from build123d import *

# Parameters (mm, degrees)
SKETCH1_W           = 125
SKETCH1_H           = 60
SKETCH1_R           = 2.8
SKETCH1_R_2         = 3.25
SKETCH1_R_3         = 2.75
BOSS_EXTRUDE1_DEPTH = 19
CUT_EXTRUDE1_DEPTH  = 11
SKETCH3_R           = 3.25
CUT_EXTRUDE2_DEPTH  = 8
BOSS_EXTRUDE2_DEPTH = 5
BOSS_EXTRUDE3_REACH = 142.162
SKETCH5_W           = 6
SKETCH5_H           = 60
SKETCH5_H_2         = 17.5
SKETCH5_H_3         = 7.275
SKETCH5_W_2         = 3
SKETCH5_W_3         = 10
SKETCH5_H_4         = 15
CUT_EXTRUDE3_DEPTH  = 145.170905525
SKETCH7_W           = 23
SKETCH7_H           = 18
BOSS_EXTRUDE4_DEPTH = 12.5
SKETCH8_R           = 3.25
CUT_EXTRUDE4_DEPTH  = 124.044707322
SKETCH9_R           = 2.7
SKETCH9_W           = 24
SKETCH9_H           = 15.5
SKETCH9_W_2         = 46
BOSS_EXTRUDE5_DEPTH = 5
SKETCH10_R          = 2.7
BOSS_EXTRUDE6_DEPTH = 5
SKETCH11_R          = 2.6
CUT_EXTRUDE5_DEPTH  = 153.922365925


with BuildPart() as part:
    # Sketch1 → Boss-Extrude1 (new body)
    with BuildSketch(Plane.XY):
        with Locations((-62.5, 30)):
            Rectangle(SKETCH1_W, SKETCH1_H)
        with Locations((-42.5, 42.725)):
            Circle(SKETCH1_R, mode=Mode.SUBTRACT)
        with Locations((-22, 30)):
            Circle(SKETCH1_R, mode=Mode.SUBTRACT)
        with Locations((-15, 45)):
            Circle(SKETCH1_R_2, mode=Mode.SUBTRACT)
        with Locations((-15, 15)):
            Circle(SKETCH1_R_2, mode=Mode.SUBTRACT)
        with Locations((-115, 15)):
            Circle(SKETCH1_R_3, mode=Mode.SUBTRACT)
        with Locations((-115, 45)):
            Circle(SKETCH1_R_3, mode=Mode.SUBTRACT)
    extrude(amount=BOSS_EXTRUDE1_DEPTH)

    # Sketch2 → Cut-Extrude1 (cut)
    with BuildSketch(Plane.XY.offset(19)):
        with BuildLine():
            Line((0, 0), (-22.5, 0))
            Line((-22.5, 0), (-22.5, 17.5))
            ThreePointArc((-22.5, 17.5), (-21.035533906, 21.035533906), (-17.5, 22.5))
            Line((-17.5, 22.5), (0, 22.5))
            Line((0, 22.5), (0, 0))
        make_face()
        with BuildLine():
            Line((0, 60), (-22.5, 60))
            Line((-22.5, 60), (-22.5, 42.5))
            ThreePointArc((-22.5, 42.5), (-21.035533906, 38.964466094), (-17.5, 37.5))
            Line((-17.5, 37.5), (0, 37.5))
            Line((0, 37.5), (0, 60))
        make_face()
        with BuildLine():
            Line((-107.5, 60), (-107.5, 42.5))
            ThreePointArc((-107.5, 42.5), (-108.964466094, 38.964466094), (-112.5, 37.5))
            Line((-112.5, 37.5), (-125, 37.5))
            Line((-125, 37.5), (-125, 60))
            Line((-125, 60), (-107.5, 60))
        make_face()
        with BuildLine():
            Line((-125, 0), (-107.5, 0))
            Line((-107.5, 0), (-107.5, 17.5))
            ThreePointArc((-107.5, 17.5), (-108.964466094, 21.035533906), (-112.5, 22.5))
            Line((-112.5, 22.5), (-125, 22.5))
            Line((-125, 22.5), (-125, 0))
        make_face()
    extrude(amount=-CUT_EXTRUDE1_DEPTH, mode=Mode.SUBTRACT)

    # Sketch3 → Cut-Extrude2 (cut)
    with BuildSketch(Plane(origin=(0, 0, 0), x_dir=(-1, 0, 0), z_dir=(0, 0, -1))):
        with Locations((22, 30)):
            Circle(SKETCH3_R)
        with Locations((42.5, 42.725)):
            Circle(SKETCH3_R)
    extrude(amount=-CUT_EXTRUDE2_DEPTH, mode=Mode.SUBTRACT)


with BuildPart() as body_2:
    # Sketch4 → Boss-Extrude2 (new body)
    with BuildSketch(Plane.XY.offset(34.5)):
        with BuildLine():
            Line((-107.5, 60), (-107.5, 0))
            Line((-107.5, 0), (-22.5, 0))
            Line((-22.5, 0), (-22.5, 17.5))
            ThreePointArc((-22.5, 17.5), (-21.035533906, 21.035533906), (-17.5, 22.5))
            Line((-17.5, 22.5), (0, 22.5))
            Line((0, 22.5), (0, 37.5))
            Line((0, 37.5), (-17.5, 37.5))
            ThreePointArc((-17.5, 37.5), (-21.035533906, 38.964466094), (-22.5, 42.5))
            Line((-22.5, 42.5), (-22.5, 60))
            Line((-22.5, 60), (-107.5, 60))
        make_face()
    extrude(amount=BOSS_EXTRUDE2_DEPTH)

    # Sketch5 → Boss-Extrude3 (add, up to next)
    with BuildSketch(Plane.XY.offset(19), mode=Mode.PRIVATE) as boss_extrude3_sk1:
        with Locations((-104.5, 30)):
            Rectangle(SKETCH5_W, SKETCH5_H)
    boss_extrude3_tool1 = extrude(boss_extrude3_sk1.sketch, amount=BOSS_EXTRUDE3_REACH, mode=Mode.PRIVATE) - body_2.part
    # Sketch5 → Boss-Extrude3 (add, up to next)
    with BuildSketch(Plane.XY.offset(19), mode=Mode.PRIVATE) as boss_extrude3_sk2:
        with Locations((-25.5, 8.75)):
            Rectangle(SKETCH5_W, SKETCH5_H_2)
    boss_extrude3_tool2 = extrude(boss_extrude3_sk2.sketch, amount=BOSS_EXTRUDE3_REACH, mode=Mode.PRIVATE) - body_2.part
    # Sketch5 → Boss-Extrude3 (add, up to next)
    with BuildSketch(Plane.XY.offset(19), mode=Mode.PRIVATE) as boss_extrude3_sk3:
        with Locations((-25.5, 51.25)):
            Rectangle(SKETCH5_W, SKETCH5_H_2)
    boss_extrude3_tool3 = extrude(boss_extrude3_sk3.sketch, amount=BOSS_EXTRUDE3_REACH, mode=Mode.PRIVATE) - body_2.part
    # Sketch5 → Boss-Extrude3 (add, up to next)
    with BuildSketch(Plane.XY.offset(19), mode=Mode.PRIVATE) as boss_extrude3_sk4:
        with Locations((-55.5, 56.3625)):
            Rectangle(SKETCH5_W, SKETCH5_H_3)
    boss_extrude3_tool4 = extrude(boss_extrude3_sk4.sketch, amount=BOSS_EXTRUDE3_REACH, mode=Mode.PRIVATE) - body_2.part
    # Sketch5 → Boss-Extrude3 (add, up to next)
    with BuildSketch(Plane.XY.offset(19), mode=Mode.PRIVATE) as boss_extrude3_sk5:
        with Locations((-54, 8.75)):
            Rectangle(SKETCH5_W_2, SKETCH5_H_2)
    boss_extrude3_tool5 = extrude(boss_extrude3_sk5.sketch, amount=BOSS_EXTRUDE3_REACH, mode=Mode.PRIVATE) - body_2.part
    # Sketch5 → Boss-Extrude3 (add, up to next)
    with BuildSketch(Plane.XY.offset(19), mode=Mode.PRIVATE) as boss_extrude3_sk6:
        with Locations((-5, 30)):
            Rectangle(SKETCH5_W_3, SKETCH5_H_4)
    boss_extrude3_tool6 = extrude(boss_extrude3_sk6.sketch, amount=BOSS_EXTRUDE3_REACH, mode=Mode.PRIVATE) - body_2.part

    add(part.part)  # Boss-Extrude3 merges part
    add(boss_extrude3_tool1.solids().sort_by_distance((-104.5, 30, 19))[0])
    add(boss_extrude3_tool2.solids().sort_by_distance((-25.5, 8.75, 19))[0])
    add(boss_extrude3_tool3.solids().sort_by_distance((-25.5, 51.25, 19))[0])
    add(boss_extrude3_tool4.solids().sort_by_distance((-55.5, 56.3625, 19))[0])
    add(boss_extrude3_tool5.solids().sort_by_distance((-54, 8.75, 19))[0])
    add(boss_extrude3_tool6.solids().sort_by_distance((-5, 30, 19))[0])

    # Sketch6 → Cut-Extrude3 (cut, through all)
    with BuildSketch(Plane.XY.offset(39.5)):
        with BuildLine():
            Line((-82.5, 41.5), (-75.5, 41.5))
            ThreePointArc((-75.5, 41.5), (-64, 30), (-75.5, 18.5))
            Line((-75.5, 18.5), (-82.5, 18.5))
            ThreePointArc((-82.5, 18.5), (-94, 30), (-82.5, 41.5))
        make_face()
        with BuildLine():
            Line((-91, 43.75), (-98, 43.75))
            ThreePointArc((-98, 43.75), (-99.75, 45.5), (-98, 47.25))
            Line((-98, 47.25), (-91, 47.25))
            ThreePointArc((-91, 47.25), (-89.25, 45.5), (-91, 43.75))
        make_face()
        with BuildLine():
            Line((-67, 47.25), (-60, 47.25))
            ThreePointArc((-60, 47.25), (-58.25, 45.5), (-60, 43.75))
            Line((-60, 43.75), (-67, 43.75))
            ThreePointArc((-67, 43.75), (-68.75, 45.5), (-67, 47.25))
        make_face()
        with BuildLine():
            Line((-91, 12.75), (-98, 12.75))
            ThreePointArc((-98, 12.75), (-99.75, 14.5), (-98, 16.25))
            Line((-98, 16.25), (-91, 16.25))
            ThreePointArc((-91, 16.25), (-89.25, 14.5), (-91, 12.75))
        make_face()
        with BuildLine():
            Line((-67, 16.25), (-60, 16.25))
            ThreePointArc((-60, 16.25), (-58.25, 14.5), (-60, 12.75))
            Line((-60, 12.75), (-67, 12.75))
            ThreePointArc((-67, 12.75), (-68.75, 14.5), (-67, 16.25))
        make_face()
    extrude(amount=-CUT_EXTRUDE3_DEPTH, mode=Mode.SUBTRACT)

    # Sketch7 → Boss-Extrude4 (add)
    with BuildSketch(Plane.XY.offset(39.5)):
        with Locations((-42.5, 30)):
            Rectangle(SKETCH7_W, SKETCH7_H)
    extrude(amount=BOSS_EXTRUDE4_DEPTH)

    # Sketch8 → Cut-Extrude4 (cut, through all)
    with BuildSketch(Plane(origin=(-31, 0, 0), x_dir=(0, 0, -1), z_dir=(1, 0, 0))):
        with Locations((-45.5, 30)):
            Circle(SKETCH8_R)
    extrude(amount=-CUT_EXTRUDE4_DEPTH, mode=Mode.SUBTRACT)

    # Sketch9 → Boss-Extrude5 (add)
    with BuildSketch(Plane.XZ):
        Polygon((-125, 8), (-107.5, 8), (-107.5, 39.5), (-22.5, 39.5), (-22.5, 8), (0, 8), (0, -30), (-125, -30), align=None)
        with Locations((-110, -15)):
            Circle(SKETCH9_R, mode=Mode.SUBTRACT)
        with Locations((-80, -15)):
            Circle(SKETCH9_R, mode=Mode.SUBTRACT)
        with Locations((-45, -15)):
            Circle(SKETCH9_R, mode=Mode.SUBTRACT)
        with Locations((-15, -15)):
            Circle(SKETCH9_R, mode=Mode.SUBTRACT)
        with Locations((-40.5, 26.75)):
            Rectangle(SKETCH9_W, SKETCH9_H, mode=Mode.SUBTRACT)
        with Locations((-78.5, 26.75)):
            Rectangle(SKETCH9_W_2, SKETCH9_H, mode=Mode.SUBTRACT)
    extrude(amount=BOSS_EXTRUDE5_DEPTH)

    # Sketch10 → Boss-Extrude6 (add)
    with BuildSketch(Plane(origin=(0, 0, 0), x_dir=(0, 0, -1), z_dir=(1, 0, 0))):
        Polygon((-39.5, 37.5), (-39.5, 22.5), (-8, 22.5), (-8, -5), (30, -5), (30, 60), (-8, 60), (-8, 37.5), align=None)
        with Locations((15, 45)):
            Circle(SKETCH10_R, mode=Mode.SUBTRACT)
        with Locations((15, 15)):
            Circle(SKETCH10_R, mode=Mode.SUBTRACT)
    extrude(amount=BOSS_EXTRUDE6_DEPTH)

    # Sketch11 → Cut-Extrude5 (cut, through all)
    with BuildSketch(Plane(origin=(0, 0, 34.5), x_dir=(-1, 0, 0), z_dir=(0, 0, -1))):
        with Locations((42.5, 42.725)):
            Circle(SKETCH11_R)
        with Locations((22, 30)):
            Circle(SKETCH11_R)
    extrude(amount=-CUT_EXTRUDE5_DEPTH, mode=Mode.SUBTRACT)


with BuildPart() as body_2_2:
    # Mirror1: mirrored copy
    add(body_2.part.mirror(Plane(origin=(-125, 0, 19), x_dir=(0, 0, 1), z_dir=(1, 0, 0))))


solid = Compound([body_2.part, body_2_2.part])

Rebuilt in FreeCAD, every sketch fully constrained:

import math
import FreeCAD as App
import Part
import Sketcher
from FreeCAD import Vector
Q = App.Units.Quantity

doc = App.newDocument("Part")
body = doc.addObject("PartDesign::Body", "Body")

# Sketch on XY plane
sketch1 = doc.addObject("Sketcher::SketchObject", "Sketch")
body.addObject(sketch1)
sketch1.AttachmentSupport = (doc.XY_Plane, [""])
sketch1.MapMode = "FlatFace"
sketch1.addGeometry([
    Part.LineSegment(Vector(-125, 60, 0), Vector(-125, 0, 0)),  # 0
    Part.LineSegment(Vector(-125, 0, 0), Vector(0, 0, 0)),  # 1
    Part.LineSegment(Vector(0, 0, 0), Vector(0, 60, 0)),  # 2
    Part.LineSegment(Vector(0, 60, 0), Vector(-125, 60, 0)),  # 3
    Part.Circle(Vector(-115, 15, 0), Vector(0, 0, 1), 2.8),  # 4
    Part.Circle(Vector(-15, 15, 0), Vector(0, 0, 1), 3.2),  # 5
    Part.Circle(Vector(-115, 45, 0), Vector(0, 0, 1), 2.8),  # 6
    Part.Circle(Vector(-22, 30, 0), Vector(0, 0, 1), 2.8),  # 7
    Part.Circle(Vector(-42.5, 42.7, 0), Vector(0, 0, 1), 2.8),  # 8
    Part.Circle(Vector(-15, 45, 0), Vector(0, 0, 1), 3.2),  # 9
], False)
sketch1.addConstraint([
    Sketcher.Constraint("Coincident", 0, 2, 1, 1),
    Sketcher.Constraint("Coincident", 1, 2, 2, 1),
    Sketcher.Constraint("Coincident", 2, 2, 3, 1),
    Sketcher.Constraint("Coincident", 3, 2, 0, 1),
    Sketcher.Constraint("Vertical", 0),
    Sketcher.Constraint("Horizontal", 1),
    Sketcher.Constraint("Vertical", 2),
    Sketcher.Constraint("Horizontal", 3),
    Sketcher.Constraint("Coincident", 1, 2, -1, 1),
    Sketcher.Constraint("Equal", 4, 6),
    Sketcher.Constraint("Equal", 7, 8),
    Sketcher.Constraint("Equal", 5, 9),
    Sketcher.Constraint("Horizontal", 4, 3, 5, 3),
    Sketcher.Constraint("Horizontal", 6, 3, 9, 3),
    Sketcher.Constraint("Vertical", 4, 3, 6, 3),
    Sketcher.Constraint("Vertical", 5, 3, 9, 3),
    Sketcher.Constraint("Diameter", 4, Q("5.5 mm")),
    Sketcher.Constraint("Diameter", 5, Q("6.5 mm")),
    Sketcher.Constraint("Diameter", 7, Q("5.6 mm")),
    Sketcher.Constraint("DistanceX", 1, 1, 1, 2, Q("125 mm")),
    Sketcher.Constraint("DistanceY", 0, 2, 0, 1, Q("60 mm")),
    Sketcher.Constraint("DistanceX", 4, 3, -1, 1, Q("115 mm")),
    Sketcher.Constraint("DistanceY", -1, 1, 4, 3, Q("15 mm")),
    Sketcher.Constraint("DistanceX", 5, 3, -1, 1, Q("15 mm")),
    Sketcher.Constraint("DistanceY", -1, 1, 6, 3, Q("45 mm")),
    Sketcher.Constraint("DistanceX", 7, 3, -1, 1, Q("22 mm")),
    Sketcher.Constraint("DistanceY", -1, 1, 7, 3, Q("30 mm")),
    Sketcher.Constraint("DistanceX", 8, 3, -1, 1, Q("42.5 mm")),
    Sketcher.Constraint("DistanceY", -1, 1, 8, 3, Q("42.725 mm")),
])
pad1 = doc.addObject("PartDesign::Pad", "Pad")
body.addObject(pad1)
pad1.Profile = sketch1
pad1.Length = 19

# Sketch on XY plane
sketch2 = doc.addObject("Sketcher::SketchObject", "Sketch001")
body.addObject(sketch2)
sketch2.AttachmentSupport = (doc.XY_Plane, [""])
sketch2.MapMode = "FlatFace"
sketch2.AttachmentOffset = App.Placement(Vector(0, 0, 19), App.Rotation())
sketch2.addGeometry([
    Part.LineSegment(Vector(-22, 0, 0), Vector(0, 0, 0)),  # 0
    Part.LineSegment(Vector(0, 0, 0), Vector(0, 22, 0)),  # 1
    Part.LineSegment(Vector(0, 22, 0), Vector(-18, 22, 0)),  # 2
    Part.ArcOfCircle(Part.Circle(Vector(-18, 18, 0), Vector(0, 0, 1), 5), math.radians(90), math.radians(180)),  # 3
    Part.LineSegment(Vector(-22, 18, 0), Vector(-22, 0, 0)),  # 4
    Part.LineSegment(Vector(0, 60, 0), Vector(-22, 60, 0)),  # 5
    Part.LineSegment(Vector(-22, 60, 0), Vector(-22, 42, 0)),  # 6
    Part.ArcOfCircle(Part.Circle(Vector(-18, 42, 0), Vector(0, 0, 1), 5), math.radians(180), math.radians(270)),  # 7
    Part.LineSegment(Vector(-18, 38, 0), Vector(0, 38, 0)),  # 8
    Part.LineSegment(Vector(0, 38, 0), Vector(0, 60, 0)),  # 9
    Part.LineSegment(Vector(-108, 42, 0), Vector(-108, 60, 0)),  # 10
    Part.LineSegment(Vector(-108, 60, 0), Vector(-125, 60, 0)),  # 11
    Part.LineSegment(Vector(-125, 60, 0), Vector(-125, 38, 0)),  # 12
    Part.LineSegment(Vector(-125, 38, 0), Vector(-112, 38, 0)),  # 13
    Part.ArcOfCircle(Part.Circle(Vector(-112, 42, 0), Vector(0, 0, 1), 5), math.radians(-90), math.radians(0)),  # 14
    Part.LineSegment(Vector(-125, 0, 0), Vector(-108, 0, 0)),  # 15
    Part.LineSegment(Vector(-108, 0, 0), Vector(-108, 18, 0)),  # 16
    Part.ArcOfCircle(Part.Circle(Vector(-112, 18, 0), Vector(0, 0, 1), 5), math.radians(0), math.radians(90)),  # 17
    Part.LineSegment(Vector(-112, 22, 0), Vector(-125, 22, 0)),  # 18
    Part.LineSegment(Vector(-125, 22, 0), Vector(-125, 0, 0)),  # 19
], False)
sketch2.addConstraint([
    Sketcher.Constraint("Coincident", 0, 2, 1, 1),
    Sketcher.Constraint("Coincident", 1, 2, 2, 1),
    Sketcher.Constraint("Tangent", 2, 2, 3, 1),
    Sketcher.Constraint("Tangent", 3, 2, 4, 1),
    Sketcher.Constraint("Coincident", 4, 2, 0, 1),
    Sketcher.Constraint("Coincident", 5, 2, 6, 1),
    Sketcher.Constraint("Tangent", 6, 2, 7, 1),
    Sketcher.Constraint("Tangent", 7, 2, 8, 1),
    Sketcher.Constraint("Coincident", 8, 2, 9, 1),
    Sketcher.Constraint("Coincident", 9, 2, 5, 1),
    Sketcher.Constraint("Coincident", 10, 2, 11, 1),
    Sketcher.Constraint("Coincident", 11, 2, 12, 1),
    Sketcher.Constraint("Coincident", 12, 2, 13, 1),
    Sketcher.Constraint("Tangent", 13, 2, 14, 1),
    Sketcher.Constraint("Tangent", 14, 2, 10, 1),
    Sketcher.Constraint("Coincident", 15, 2, 16, 1),
    Sketcher.Constraint("Tangent", 16, 2, 17, 1),
    Sketcher.Constraint("Tangent", 17, 2, 18, 1),
    Sketcher.Constraint("Coincident", 18, 2, 19, 1),
    Sketcher.Constraint("Coincident", 19, 2, 15, 1),
    Sketcher.Constraint("Horizontal", 0),
    Sketcher.Constraint("Vertical", 1),
    Sketcher.Constraint("Horizontal", 2),
    Sketcher.Constraint("Vertical", 4),
    Sketcher.Constraint("Horizontal", 5),
    Sketcher.Constraint("Vertical", 6),
    Sketcher.Constraint("Horizontal", 8),
    Sketcher.Constraint("Vertical", 9),
    Sketcher.Constraint("Vertical", 10),
    Sketcher.Constraint("Horizontal", 11),
    Sketcher.Constraint("Vertical", 12),
    Sketcher.Constraint("Horizontal", 13),
    Sketcher.Constraint("Horizontal", 15),
    Sketcher.Constraint("Vertical", 16),
    Sketcher.Constraint("Horizontal", 18),
    Sketcher.Constraint("Vertical", 19),
    Sketcher.Constraint("Coincident", 0, 2, -1, 1),
    Sketcher.Constraint("Equal", 3, 7),
    Sketcher.Constraint("Equal", 7, 14),
    Sketcher.Constraint("Equal", 14, 17),
    Sketcher.Constraint("PointOnObject", 8, 2, -2),
    Sketcher.Constraint("PointOnObject", 15, 2, -1),
    Sketcher.Constraint("Horizontal", 7, 3, 14, 3),
    Sketcher.Constraint("Horizontal", 3, 3, 17, 3),
    Sketcher.Constraint("Horizontal", 9, 2, 10, 2),
    Sketcher.Constraint("Vertical", 3, 3, 7, 3),
    Sketcher.Constraint("Vertical", 14, 3, 17, 3),
    Sketcher.Constraint("Vertical", 12, 2, 18, 2),
    Sketcher.Constraint("Equal", 8, 11),
    Sketcher.Constraint("Equal", 5, 1),
    Sketcher.Constraint("Equal", 4, 6),
    Sketcher.Constraint("Radius", 3, Q("5 mm")),
    Sketcher.Constraint("DistanceX", 0, 1, 0, 2, Q("22.5 mm")),
    Sketcher.Constraint("DistanceY", -1, 1, 5, 2, Q("60 mm")),
    Sketcher.Constraint("DistanceX", 11, 2, -1, 1, Q("125 mm")),
])
pocket1 = doc.addObject("PartDesign::Pocket", "Pocket")
body.addObject(pocket1)
pocket1.Profile = sketch2
pocket1.Length = 11

# Sketch on XY plane
sketch3 = doc.addObject("Sketcher::SketchObject", "Sketch002")
body.addObject(sketch3)
sketch3.AttachmentSupport = (doc.XY_Plane, [""])
sketch3.MapMode = "FlatFace"
sketch3.addGeometry([
    Part.Circle(Vector(-22, 30, 0), Vector(0, 0, 1), 3.2),
    Part.Circle(Vector(-42.5, 42.7, 0), Vector(0, 0, 1), 3.2),
], False)
sketch3.addConstraint([
    Sketcher.Constraint("Equal", 0, 1),
    Sketcher.Constraint("Diameter", 0, Q("6.5 mm")),
    Sketcher.Constraint("DistanceX", 0, 3, -1, 1, Q("22 mm")),
    Sketcher.Constraint("DistanceY", -1, 1, 0, 3, Q("30 mm")),
    Sketcher.Constraint("DistanceX", 1, 3, -1, 1, Q("42.5 mm")),
    Sketcher.Constraint("DistanceY", -1, 1, 1, 3, Q("42.725 mm")),
])
pocket2 = doc.addObject("PartDesign::Pocket", "Pocket001")
body.addObject(pocket2)
pocket2.Profile = sketch3
pocket2.Length = 8
pocket2.Reversed = True
body2 = doc.addObject("PartDesign::Body", "Body001")
body2.AllowCompound = True

# Sketch on XY plane
sketch4 = doc.addObject("Sketcher::SketchObject", "Sketch003")
body2.addObject(sketch4)
sketch4.AttachmentSupport = (doc.getObject("XY_Plane001"), [""])
sketch4.MapMode = "FlatFace"
sketch4.AttachmentOffset = App.Placement(Vector(0, 0, 34.5), App.Rotation())
sketch4.addGeometry([
    Part.LineSegment(Vector(-108, 60, 0), Vector(-108, 0, 0)),  # 0
    Part.LineSegment(Vector(-108, 0, 0), Vector(-22, 0, 0)),  # 1
    Part.LineSegment(Vector(-22, 0, 0), Vector(-22, 18, 0)),  # 2
    Part.ArcOfCircle(Part.Circle(Vector(-18, 18, 0), Vector(0, 0, 1), 5), math.radians(90), math.radians(180)),  # 3
    Part.LineSegment(Vector(-18, 22, 0), Vector(0, 22, 0)),  # 4
    Part.LineSegment(Vector(0, 22, 0), Vector(0, 38, 0)),  # 5
    Part.LineSegment(Vector(0, 38, 0), Vector(-18, 38, 0)),  # 6
    Part.ArcOfCircle(Part.Circle(Vector(-18, 42, 0), Vector(0, 0, 1), 5), math.radians(180), math.radians(270)),  # 7
    Part.LineSegment(Vector(-22, 42, 0), Vector(-22, 60, 0)),  # 8
    Part.LineSegment(Vector(-22, 60, 0), Vector(-108, 60, 0)),  # 9
], False)
sketch4.addConstraint([
    Sketcher.Constraint("Coincident", 0, 2, 1, 1),
    Sketcher.Constraint("Coincident", 1, 2, 2, 1),
    Sketcher.Constraint("Tangent", 2, 2, 3, 2),
    Sketcher.Constraint("Tangent", 3, 1, 4, 1),
    Sketcher.Constraint("Coincident", 4, 2, 5, 1),
    Sketcher.Constraint("Coincident", 5, 2, 6, 1),
    Sketcher.Constraint("Tangent", 6, 2, 7, 2),
    Sketcher.Constraint("Tangent", 7, 1, 8, 1),
    Sketcher.Constraint("Coincident", 8, 2, 9, 1),
    Sketcher.Constraint("Coincident", 9, 2, 0, 1),
    Sketcher.Constraint("Vertical", 0),
    Sketcher.Constraint("Horizontal", 1),
    Sketcher.Constraint("Vertical", 2),
    Sketcher.Constraint("Horizontal", 4),
    Sketcher.Constraint("Vertical", 5),
    Sketcher.Constraint("Horizontal", 6),
    Sketcher.Constraint("Vertical", 8),
    Sketcher.Constraint("Horizontal", 9),
    Sketcher.Constraint("Equal", 3, 7),
    Sketcher.Constraint("PointOnObject", 0, 2, -1),
    Sketcher.Constraint("PointOnObject", 4, 2, -2),
    Sketcher.Constraint("Vertical", 3, 3, 7, 3),
    Sketcher.Constraint("Equal", 6, 2),
    Sketcher.Constraint("Equal", 2, 8),
    Sketcher.Constraint("Radius", 3, Q("5 mm")),
    Sketcher.Constraint("DistanceX", 1, 1, 1, 2, Q("85 mm")),
    Sketcher.Constraint("DistanceY", 0, 2, 0, 1, Q("60 mm")),
    Sketcher.Constraint("DistanceY", 5, 1, 5, 2, Q("15 mm")),
])
pad2 = doc.addObject("PartDesign::Pad", "Pad001")
body2.addObject(pad2)
pad2.Profile = sketch4
pad2.Length = 5
doc.recompute()

boolean = doc.addObject("PartDesign::Boolean", "Boolean")
body2.addObject(boolean)
boolean.Type = "Fuse"
boolean.addObjects([body])

# Sketch on XY plane
sketch5 = doc.addObject("Sketcher::SketchObject", "Sketch004")
body2.addObject(sketch5)
sketch5.AttachmentSupport = (doc.getObject("XY_Plane001"), [""])
sketch5.MapMode = "FlatFace"
sketch5.AttachmentOffset = App.Placement(Vector(0, 0, 19), App.Rotation())
sketch5.addGeometry([
    Part.LineSegment(Vector(-108, 60, 0), Vector(-108, 0, 0)),
    Part.LineSegment(Vector(-108, 0, 0), Vector(-102, 0, 0)),
    Part.LineSegment(Vector(-102, 0, 0), Vector(-102, 60, 0)),
    Part.LineSegment(Vector(-102, 60, 0), Vector(-108, 60, 0)),
], False)
sketch5.addConstraint([
    Sketcher.Constraint("Coincident", 0, 2, 1, 1),
    Sketcher.Constraint("Coincident", 1, 2, 2, 1),
    Sketcher.Constraint("Coincident", 2, 2, 3, 1),
    Sketcher.Constraint("Coincident", 3, 2, 0, 1),
    Sketcher.Constraint("Vertical", 0),
    Sketcher.Constraint("Horizontal", 1),
    Sketcher.Constraint("Vertical", 2),
    Sketcher.Constraint("Horizontal", 3),
    Sketcher.Constraint("PointOnObject", 0, 2, -1),
    Sketcher.Constraint("DistanceX", 1, 1, 1, 2, Q("6 mm")),
    Sketcher.Constraint("DistanceY", 0, 2, 0, 1, Q("60 mm")),
    Sketcher.Constraint("DistanceX", 0, 2, -1, 1, Q("107.5 mm")),
])
pad3 = doc.addObject("PartDesign::Pad", "Pad002")
body2.addObject(pad3)
pad3.Profile = sketch5
pad3.Type = "UpToFirst"

# Sketch on XY plane
sketch6 = doc.addObject("Sketcher::SketchObject", "Sketch005")
body2.addObject(sketch6)
sketch6.AttachmentSupport = (doc.getObject("XY_Plane001"), [""])
sketch6.MapMode = "FlatFace"
sketch6.AttachmentOffset = App.Placement(Vector(0, 0, 19), App.Rotation())
sketch6.addGeometry([
    Part.LineSegment(Vector(-28, 18, 0), Vector(-28, 0, 0)),
    Part.LineSegment(Vector(-28, 0, 0), Vector(-22, 0, 0)),
    Part.LineSegment(Vector(-22, 0, 0), Vector(-22, 18, 0)),
    Part.LineSegment(Vector(-22, 18, 0), Vector(-28, 18, 0)),
], False)
sketch6.addConstraint([
    Sketcher.Constraint("Coincident", 0, 2, 1, 1),
    Sketcher.Constraint("Coincident", 1, 2, 2, 1),
    Sketcher.Constraint("Coincident", 2, 2, 3, 1),
    Sketcher.Constraint("Coincident", 3, 2, 0, 1),
    Sketcher.Constraint("Vertical", 0),
    Sketcher.Constraint("Horizontal", 1),
    Sketcher.Constraint("Vertical", 2),
    Sketcher.Constraint("Horizontal", 3),
    Sketcher.Constraint("PointOnObject", 0, 2, -1),
    Sketcher.Constraint("DistanceX", 1, 1, 1, 2, Q("6 mm")),
    Sketcher.Constraint("DistanceY", 0, 2, 0, 1, Q("17.5 mm")),
    Sketcher.Constraint("DistanceX", 0, 2, -1, 1, Q("28.5 mm")),
])
pad4 = doc.addObject("PartDesign::Pad", "Pad003")
body2.addObject(pad4)
pad4.Profile = sketch6
pad4.Type = "UpToFirst"

# Sketch on XY plane
sketch7 = doc.addObject("Sketcher::SketchObject", "Sketch006")
body2.addObject(sketch7)
sketch7.AttachmentSupport = (doc.getObject("XY_Plane001"), [""])
sketch7.MapMode = "FlatFace"
sketch7.AttachmentOffset = App.Placement(Vector(0, 0, 19), App.Rotation())
sketch7.addGeometry([
    Part.LineSegment(Vector(-28, 60, 0), Vector(-28, 42, 0)),
    Part.LineSegment(Vector(-28, 42, 0), Vector(-22, 42, 0)),
    Part.LineSegment(Vector(-22, 42, 0), Vector(-22, 60, 0)),
    Part.LineSegment(Vector(-22, 60, 0), Vector(-28, 60, 0)),
], False)
sketch7.addConstraint([
    Sketcher.Constraint("Coincident", 0, 2, 1, 1),
    Sketcher.Constraint("Coincident", 1, 2, 2, 1),
    Sketcher.Constraint("Coincident", 2, 2, 3, 1),
    Sketcher.Constraint("Coincident", 3, 2, 0, 1),
    Sketcher.Constraint("Vertical", 0),
    Sketcher.Constraint("Horizontal", 1),
    Sketcher.Constraint("Vertical", 2),
    Sketcher.Constraint("Horizontal", 3),
    Sketcher.Constraint("DistanceX", 1, 1, 1, 2, Q("6 mm")),
    Sketcher.Constraint("DistanceY", 0, 2, 0, 1, Q("17.5 mm")),
    Sketcher.Constraint("DistanceY", -1, 1, 2, 2, Q("60 mm")),
    Sketcher.Constraint("DistanceX", 0, 2, -1, 1, Q("28.5 mm")),
])
pad5 = doc.addObject("PartDesign::Pad", "Pad004")
body2.addObject(pad5)
pad5.Profile = sketch7
pad5.Type = "UpToFirst"

# Sketch on XY plane
sketch8 = doc.addObject("Sketcher::SketchObject", "Sketch007")
body2.addObject(sketch8)
sketch8.AttachmentSupport = (doc.getObject("XY_Plane001"), [""])
sketch8.MapMode = "FlatFace"
sketch8.AttachmentOffset = App.Placement(Vector(0, 0, 19), App.Rotation())
sketch8.addGeometry([
    Part.LineSegment(Vector(-58, 60, 0), Vector(-58, 53, 0)),
    Part.LineSegment(Vector(-58, 53, 0), Vector(-52, 53, 0)),
    Part.LineSegment(Vector(-52, 53, 0), Vector(-52, 60, 0)),
    Part.LineSegment(Vector(-52, 60, 0), Vector(-58, 60, 0)),
], False)
sketch8.addConstraint([
    Sketcher.Constraint("Coincident", 0, 2, 1, 1),
    Sketcher.Constraint("Coincident", 1, 2, 2, 1),
    Sketcher.Constraint("Coincident", 2, 2, 3, 1),
    Sketcher.Constraint("Coincident", 3, 2, 0, 1),
    Sketcher.Constraint("Vertical", 0),
    Sketcher.Constraint("Horizontal", 1),
    Sketcher.Constraint("Vertical", 2),
    Sketcher.Constraint("Horizontal", 3),
    Sketcher.Constraint("DistanceX", 1, 1, 1, 2, Q("6 mm")),
    Sketcher.Constraint("DistanceY", -1, 1, 2, 2, Q("60 mm")),
    Sketcher.Constraint("DistanceX", 0, 2, -1, 1, Q("58.5 mm")),
    Sketcher.Constraint("DistanceY", 0, 2, 0, 1, Q("7.275 mm")),
])
pad6 = doc.addObject("PartDesign::Pad", "Pad005")
body2.addObject(pad6)
pad6.Profile = sketch8
pad6.Type = "UpToFirst"

# Sketch on XY plane
sketch9 = doc.addObject("Sketcher::SketchObject", "Sketch008")
body2.addObject(sketch9)
sketch9.AttachmentSupport = (doc.getObject("XY_Plane001"), [""])
sketch9.MapMode = "FlatFace"
sketch9.AttachmentOffset = App.Placement(Vector(0, 0, 19), App.Rotation())
sketch9.addGeometry([
    Part.LineSegment(Vector(-55.5, 17.5, 0), Vector(-55.5, 0, 0)),
    Part.LineSegment(Vector(-55.5, 0, 0), Vector(-52.5, 0, 0)),
    Part.LineSegment(Vector(-52.5, 0, 0), Vector(-52.5, 17.5, 0)),
    Part.LineSegment(Vector(-52.5, 17.5, 0), Vector(-55.5, 17.5, 0)),
], False)
sketch9.addConstraint([
    Sketcher.Constraint("Coincident", 0, 2, 1, 1),
    Sketcher.Constraint("Coincident", 1, 2, 2, 1),
    Sketcher.Constraint("Coincident", 2, 2, 3, 1),
    Sketcher.Constraint("Coincident", 3, 2, 0, 1),
    Sketcher.Constraint("Vertical", 0),
    Sketcher.Constraint("Horizontal", 1),
    Sketcher.Constraint("Vertical", 2),
    Sketcher.Constraint("Horizontal", 3),
    Sketcher.Constraint("PointOnObject", 0, 2, -1),
    Sketcher.Constraint("DistanceX", 1, 1, 1, 2, Q("3 mm")),
    Sketcher.Constraint("DistanceY", 0, 2, 0, 1, Q("17.5 mm")),
    Sketcher.Constraint("DistanceX", 0, 2, -1, 1, Q("55.5 mm")),
])
pad7 = doc.addObject("PartDesign::Pad", "Pad006")
body2.addObject(pad7)
pad7.Profile = sketch9
pad7.Type = "UpToFirst"

# Sketch on XY plane
sketch10 = doc.addObject("Sketcher::SketchObject", "Sketch009")
body2.addObject(sketch10)
sketch10.AttachmentSupport = (doc.getObject("XY_Plane001"), [""])
sketch10.MapMode = "FlatFace"
sketch10.AttachmentOffset = App.Placement(Vector(0, 0, 19), App.Rotation())
sketch10.addGeometry([
    Part.LineSegment(Vector(-10, 38, 0), Vector(-10, 22, 0)),
    Part.LineSegment(Vector(-10, 22, 0), Vector(0, 22, 0)),
    Part.LineSegment(Vector(0, 22, 0), Vector(0, 38, 0)),
    Part.LineSegment(Vector(0, 38, 0), Vector(-10, 38, 0)),
], False)
sketch10.addConstraint([
    Sketcher.Constraint("Coincident", 0, 2, 1, 1),
    Sketcher.Constraint("Coincident", 1, 2, 2, 1),
    Sketcher.Constraint("Coincident", 2, 2, 3, 1),
    Sketcher.Constraint("Coincident", 3, 2, 0, 1),
    Sketcher.Constraint("Vertical", 0),
    Sketcher.Constraint("Horizontal", 1),
    Sketcher.Constraint("Vertical", 2),
    Sketcher.Constraint("Horizontal", 3),
    Sketcher.Constraint("PointOnObject", 1, 2, -2),
    Sketcher.Constraint("DistanceX", 1, 1, 1, 2, Q("10 mm")),
    Sketcher.Constraint("DistanceY", 0, 2, 0, 1, Q("15 mm")),
    Sketcher.Constraint("DistanceY", -1, 1, 0, 2, Q("22.5 mm")),
])
pad8 = doc.addObject("PartDesign::Pad", "Pad007")
body2.addObject(pad8)
pad8.Profile = sketch10
pad8.Type = "UpToFirst"

# Sketch on XY plane
sketch11 = doc.addObject("Sketcher::SketchObject", "Sketch010")
body2.addObject(sketch11)
sketch11.AttachmentSupport = (doc.getObject("XY_Plane001"), [""])
sketch11.MapMode = "FlatFace"
sketch11.AttachmentOffset = App.Placement(Vector(0, 0, 39.5), App.Rotation())
sketch11.addGeometry([
    Part.LineSegment(Vector(-75.5, 41.5, 0), Vector(-82.5, 41.5, 0)),  # 0
    Part.ArcOfCircle(Part.Circle(Vector(-82.5, 30, 0), Vector(0, 0, 1), 11.5), math.radians(90), math.radians(270)),  # 1
    Part.LineSegment(Vector(-82.5, 18.5, 0), Vector(-75.5, 18.5, 0)),  # 2
    Part.ArcOfCircle(Part.Circle(Vector(-75.5, 30, 0), Vector(0, 0, 1), 11.5), math.radians(-90), math.radians(90)),  # 3
    Part.LineSegment(Vector(-98, 43.8, 0), Vector(-91, 43.8, 0)),  # 4
    Part.ArcOfCircle(Part.Circle(Vector(-91, 45.5, 0), Vector(0, 0, 1), 1.8), math.radians(-90), math.radians(90)),  # 5
    Part.LineSegment(Vector(-91, 47.2, 0), Vector(-98, 47.2, 0)),  # 6
    Part.ArcOfCircle(Part.Circle(Vector(-98, 45.5, 0), Vector(0, 0, 1), 1.8), math.radians(90), math.radians(270)),  # 7
    Part.LineSegment(Vector(-60, 47.2, 0), Vector(-67, 47.2, 0)),  # 8
    Part.ArcOfCircle(Part.Circle(Vector(-67, 45.5, 0), Vector(0, 0, 1), 1.8), math.radians(90), math.radians(270)),  # 9
    Part.LineSegment(Vector(-67, 43.8, 0), Vector(-60, 43.8, 0)),  # 10
    Part.ArcOfCircle(Part.Circle(Vector(-60, 45.5, 0), Vector(0, 0, 1), 1.8), math.radians(-90), math.radians(90)),  # 11
    Part.LineSegment(Vector(-98, 12.8, 0), Vector(-91, 12.8, 0)),  # 12
    Part.ArcOfCircle(Part.Circle(Vector(-91, 14.5, 0), Vector(0, 0, 1), 1.8), math.radians(-90), math.radians(90)),  # 13
    Part.LineSegment(Vector(-91, 16.2, 0), Vector(-98, 16.2, 0)),  # 14
    Part.ArcOfCircle(Part.Circle(Vector(-98, 14.5, 0), Vector(0, 0, 1), 1.8), math.radians(90), math.radians(270)),  # 15
    Part.LineSegment(Vector(-60, 16.2, 0), Vector(-67, 16.2, 0)),  # 16
    Part.ArcOfCircle(Part.Circle(Vector(-67, 14.5, 0), Vector(0, 0, 1), 1.8), math.radians(90), math.radians(270)),  # 17
    Part.LineSegment(Vector(-67, 12.8, 0), Vector(-60, 12.8, 0)),  # 18
    Part.ArcOfCircle(Part.Circle(Vector(-60, 14.5, 0), Vector(0, 0, 1), 1.8), math.radians(-90), math.radians(90)),  # 19
], False)
sketch11.addConstraint([
    Sketcher.Constraint("Tangent", 0, 2, 1, 1),
    Sketcher.Constraint("Tangent", 1, 2, 2, 1),
    Sketcher.Constraint("Tangent", 2, 2, 3, 1),
    Sketcher.Constraint("Tangent", 3, 2, 0, 1),
    Sketcher.Constraint("Tangent", 4, 2, 5, 1),
    Sketcher.Constraint("Tangent", 5, 2, 6, 1),
    Sketcher.Constraint("Tangent", 6, 2, 7, 1),
    Sketcher.Constraint("Tangent", 7, 2, 4, 1),
    Sketcher.Constraint("Tangent", 8, 2, 9, 1),
    Sketcher.Constraint("Tangent", 9, 2, 10, 1),
    Sketcher.Constraint("Tangent", 10, 2, 11, 1),
    Sketcher.Constraint("Tangent", 11, 2, 8, 1),
    Sketcher.Constraint("Tangent", 12, 2, 13, 1),
    Sketcher.Constraint("Tangent", 13, 2, 14, 1),
    Sketcher.Constraint("Tangent", 14, 2, 15, 1),
    Sketcher.Constraint("Tangent", 15, 2, 12, 1),
    Sketcher.Constraint("Tangent", 16, 2, 17, 1),
    Sketcher.Constraint("Tangent", 17, 2, 18, 1),
    Sketcher.Constraint("Tangent", 18, 2, 19, 1),
    Sketcher.Constraint("Tangent", 19, 2, 16, 1),
    Sketcher.Constraint("Horizontal", 0),
    Sketcher.Constraint("Horizontal", 2),
    Sketcher.Constraint("Horizontal", 4),
    Sketcher.Constraint("Horizontal", 6),
    Sketcher.Constraint("Horizontal", 8),
    Sketcher.Constraint("Horizontal", 10),
    Sketcher.Constraint("Horizontal", 12),
    Sketcher.Constraint("Horizontal", 14),
    Sketcher.Constraint("Horizontal", 16),
    Sketcher.Constraint("Horizontal", 18),
    Sketcher.Constraint("Equal", 7, 9),
    Sketcher.Constraint("Equal", 11, 13),
    Sketcher.Constraint("Equal", 15, 17),
    Sketcher.Constraint("Horizontal", 7, 3, 9, 3),
    Sketcher.Constraint("Horizontal", 15, 3, 17, 3),
    Sketcher.Constraint("Vertical", 5, 3, 13, 3),
    Sketcher.Constraint("Vertical", 7, 3, 15, 3),
    Sketcher.Constraint("Vertical", 9, 3, 17, 3),
    Sketcher.Constraint("Vertical", 11, 3, 19, 3),
    Sketcher.Constraint("Equal", 2, 4),
    Sketcher.Constraint("Equal", 6, 8),
    Sketcher.Constraint("Radius", 1, Q("11.5 mm")),
    Sketcher.Constraint("DistanceX", 0, 2, 0, 1, Q("7 mm")),
    Sketcher.Constraint("Radius", 5, Q("1.75 mm")),
    Sketcher.Constraint("DistanceY", -1, 1, 1, 3, Q("30 mm")),
    Sketcher.Constraint("DistanceX", 5, 3, -1, 1, Q("91 mm")),
    Sketcher.Constraint("DistanceX", 9, 3, -1, 1, Q("67 mm")),
    Sketcher.Constraint("DistanceY", 13, 3, 5, 3, Q("31 mm")),
    Sketcher.Constraint("DistanceY", 0, 2, 5, 3, Q("4 mm")),
    Sketcher.Constraint("DistanceX", 1, 3, -1, 1, Q("82.5 mm")),
])
pocket3 = doc.addObject("PartDesign::Pocket", "Pocket002")
body2.addObject(pocket3)
pocket3.Profile = sketch11
pocket3.Type = "ThroughAll"

# Sketch on XY plane
sketch12 = doc.addObject("Sketcher::SketchObject", "Sketch011")
body2.addObject(sketch12)
sketch12.AttachmentSupport = (doc.getObject("XY_Plane001"), [""])
sketch12.MapMode = "FlatFace"
sketch12.AttachmentOffset = App.Placement(Vector(0, 0, 39.5), App.Rotation())
sketch12.addGeometry([
    Part.LineSegment(Vector(-54, 39, 0), Vector(-54, 21, 0)),
    Part.LineSegment(Vector(-54, 21, 0), Vector(-31, 21, 0)),
    Part.LineSegment(Vector(-31, 21, 0), Vector(-31, 39, 0)),
    Part.LineSegment(Vector(-31, 39, 0), Vector(-54, 39, 0)),
], False)
sketch12.addConstraint([
    Sketcher.Constraint("Coincident", 0, 2, 1, 1),
    Sketcher.Constraint("Coincident", 1, 2, 2, 1),
    Sketcher.Constraint("Coincident", 2, 2, 3, 1),
    Sketcher.Constraint("Coincident", 3, 2, 0, 1),
    Sketcher.Constraint("Vertical", 0),
    Sketcher.Constraint("Horizontal", 1),
    Sketcher.Constraint("Vertical", 2),
    Sketcher.Constraint("Horizontal", 3),
    Sketcher.Constraint("DistanceX", 1, 1, 1, 2, Q("23 mm")),
    Sketcher.Constraint("DistanceY", 0, 2, 0, 1, Q("18 mm")),
    Sketcher.Constraint("DistanceX", 0, 2, -1, 1, Q("54 mm")),
    Sketcher.Constraint("DistanceY", -1, 1, 0, 2, Q("21 mm")),
])
pad9 = doc.addObject("PartDesign::Pad", "Pad008")
body2.addObject(pad9)
pad9.Profile = sketch12
pad9.Length = 12.5

# Sketch on YZ plane
sketch13 = doc.addObject("Sketcher::SketchObject", "Sketch012")
body2.addObject(sketch13)
sketch13.AttachmentSupport = (doc.getObject("YZ_Plane001"), [""])
sketch13.MapMode = "FlatFace"
sketch13.AttachmentOffset = App.Placement(Vector(0, 0, -31), App.Rotation())
sketch13.addGeometry(Part.Circle(Vector(30, 45.5, 0), Vector(0, 0, 1), 3.2), False)
sketch13.addConstraint([
    Sketcher.Constraint("Diameter", 0, Q("6.5 mm")),
    Sketcher.Constraint("DistanceX", -1, 1, 0, 3, Q("30 mm")),
    Sketcher.Constraint("DistanceY", -1, 1, 0, 3, Q("45.5 mm")),
])
pocket4 = doc.addObject("PartDesign::Pocket", "Pocket003")
body2.addObject(pocket4)
pocket4.Profile = sketch13
pocket4.Type = "ThroughAll"

# Sketch on XZ plane
sketch14 = doc.addObject("Sketcher::SketchObject", "Sketch013")
body2.addObject(sketch14)
sketch14.AttachmentSupport = (doc.getObject("XZ_Plane001"), [""])
sketch14.MapMode = "FlatFace"
sketch14.addGeometry([
    Part.LineSegment(Vector(-107.5, 8, 0), Vector(-125, 8, 0)),  # 0
    Part.LineSegment(Vector(-125, 8, 0), Vector(-125, -30, 0)),  # 1
    Part.LineSegment(Vector(-125, -30, 0), Vector(0, -30, 0)),  # 2
    Part.LineSegment(Vector(0, -30, 0), Vector(0, 8, 0)),  # 3
    Part.LineSegment(Vector(0, 8, 0), Vector(-22.5, 8, 0)),  # 4
    Part.LineSegment(Vector(-22.5, 8, 0), Vector(-22.5, 39.5, 0)),  # 5
    Part.LineSegment(Vector(-22.5, 39.5, 0), Vector(-107.5, 39.5, 0)),  # 6
    Part.LineSegment(Vector(-107.5, 39.5, 0), Vector(-107.5, 8, 0)),  # 7
    Part.Circle(Vector(-15, -15, 0), Vector(0, 0, 1), 2.7),  # 8
    Part.Circle(Vector(-45, -15, 0), Vector(0, 0, 1), 2.7),  # 9
    Part.Circle(Vector(-80, -15, 0), Vector(0, 0, 1), 2.7),  # 10
    Part.Circle(Vector(-110, -15, 0), Vector(0, 0, 1), 2.7),  # 11
    Part.LineSegment(Vector(-52.5, 19, 0), Vector(-52.5, 34.5, 0)),  # 12
    Part.LineSegment(Vector(-52.5, 34.5, 0), Vector(-28.5, 34.5, 0)),  # 13
    Part.LineSegment(Vector(-28.5, 34.5, 0), Vector(-28.5, 19, 0)),  # 14
    Part.LineSegment(Vector(-28.5, 19, 0), Vector(-52.5, 19, 0)),  # 15
    Part.LineSegment(Vector(-101.5, 19, 0), Vector(-101.5, 34.5, 0)),  # 16
    Part.LineSegment(Vector(-101.5, 34.5, 0), Vector(-55.5, 34.5, 0)),  # 17
    Part.LineSegment(Vector(-55.5, 34.5, 0), Vector(-55.5, 19, 0)),  # 18
    Part.LineSegment(Vector(-55.5, 19, 0), Vector(-101.5, 19, 0)),  # 19
], False)
sketch14.addConstraint([
    Sketcher.Constraint("Coincident", 0, 2, 1, 1),
    Sketcher.Constraint("Coincident", 1, 2, 2, 1),
    Sketcher.Constraint("Coincident", 2, 2, 3, 1),
    Sketcher.Constraint("Coincident", 3, 2, 4, 1),
    Sketcher.Constraint("Coincident", 4, 2, 5, 1),
    Sketcher.Constraint("Coincident", 5, 2, 6, 1),
    Sketcher.Constraint("Coincident", 6, 2, 7, 1),
    Sketcher.Constraint("Coincident", 7, 2, 0, 1),
    Sketcher.Constraint("Coincident", 12, 2, 13, 1),
    Sketcher.Constraint("Coincident", 13, 2, 14, 1),
    Sketcher.Constraint("Coincident", 14, 2, 15, 1),
    Sketcher.Constraint("Coincident", 15, 2, 12, 1),
    Sketcher.Constraint("Coincident", 16, 2, 17, 1),
    Sketcher.Constraint("Coincident", 17, 2, 18, 1),
    Sketcher.Constraint("Coincident", 18, 2, 19, 1),
    Sketcher.Constraint("Coincident", 19, 2, 16, 1),
    Sketcher.Constraint("Horizontal", 0),
    Sketcher.Constraint("Vertical", 1),
    Sketcher.Constraint("Horizontal", 2),
    Sketcher.Constraint("Vertical", 3),
    Sketcher.Constraint("Horizontal", 4),
    Sketcher.Constraint("Vertical", 5),
    Sketcher.Constraint("Horizontal", 6),
    Sketcher.Constraint("Vertical", 7),
    Sketcher.Constraint("Vertical", 12),
    Sketcher.Constraint("Horizontal", 13),
    Sketcher.Constraint("Vertical", 14),
    Sketcher.Constraint("Horizontal", 15),
    Sketcher.Constraint("Vertical", 16),
    Sketcher.Constraint("Horizontal", 17),
    Sketcher.Constraint("Vertical", 18),
    Sketcher.Constraint("Horizontal", 19),
    Sketcher.Constraint("Equal", 8, 9),
    Sketcher.Constraint("Equal", 9, 10),
    Sketcher.Constraint("Equal", 10, 11),
    Sketcher.Constraint("PointOnObject", 2, 2, -2),
    Sketcher.Constraint("Horizontal", 8, 3, 9, 3),
    Sketcher.Constraint("Horizontal", 9, 3, 10, 3),
    Sketcher.Constraint("Horizontal", 10, 3, 11, 3),
    Sketcher.Constraint("Horizontal", 0, 2, 3, 2),
    Sketcher.Constraint("Horizontal", 13, 2, 16, 2),
    Sketcher.Constraint("Horizontal", 15, 2, 18, 2),
    Sketcher.Constraint("Diameter", 8, Q("5.4 mm")),
    Sketcher.Constraint("DistanceX", 2, 1, 2, 2, Q("125 mm")),
    Sketcher.Constraint("DistanceX", 6, 2, 6, 1, Q("85 mm")),
    Sketcher.Constraint("DistanceX", 13, 1, 13, 2, Q("24 mm")),
    Sketcher.Constraint("DistanceX", 17, 1, 17, 2, Q("46 mm")),
    Sketcher.Constraint("DistanceY", 1, 2, 1, 1, Q("38 mm")),
    Sketcher.Constraint("DistanceX", 0, 2, 0, 1, Q("17.5 mm")),
    Sketcher.Constraint("DistanceY", 5, 1, 5, 2, Q("31.5 mm")),
    Sketcher.Constraint("DistanceY", 12, 1, 12, 2, Q("15.5 mm")),
    Sketcher.Constraint("DistanceX", 8, 3, -1, 1, Q("15 mm")),
    Sketcher.Constraint("DistanceY", 8, 3, -1, 1, Q("15 mm")),
    Sketcher.Constraint("DistanceX", 9, 3, -1, 1, Q("45 mm")),
    Sketcher.Constraint("DistanceX", 10, 3, -1, 1, Q("80 mm")),
    Sketcher.Constraint("DistanceX", 11, 3, -1, 1, Q("110 mm")),
    Sketcher.Constraint("DistanceY", -1, 1, 0, 2, Q("8 mm")),
    Sketcher.Constraint("DistanceY", -1, 1, 14, 2, Q("19 mm")),
    Sketcher.Constraint("DistanceX", 12, 2, 5, 2, Q("30 mm")),
    Sketcher.Constraint("DistanceX", 6, 2, 16, 2, Q("6 mm")),
])
pad10 = doc.addObject("PartDesign::Pad", "Pad009")
body2.addObject(pad10)
pad10.Profile = sketch14
pad10.Length = 5

# Sketch on YZ plane
sketch15 = doc.addObject("Sketcher::SketchObject", "Sketch014")
body2.addObject(sketch15)
sketch15.AttachmentSupport = (doc.getObject("YZ_Plane001"), [""])
sketch15.MapMode = "FlatFace"
sketch15.addGeometry([
    Part.LineSegment(Vector(37.5, 39.5, 0), Vector(22.5, 39.5, 0)),  # 0
    Part.LineSegment(Vector(22.5, 39.5, 0), Vector(22.5, 8, 0)),  # 1
    Part.LineSegment(Vector(22.5, 8, 0), Vector(-5, 8, 0)),  # 2
    Part.LineSegment(Vector(-5, 8, 0), Vector(-5, -30, 0)),  # 3
    Part.LineSegment(Vector(-5, -30, 0), Vector(60, -30, 0)),  # 4
    Part.LineSegment(Vector(60, -30, 0), Vector(60, 8, 0)),  # 5
    Part.LineSegment(Vector(60, 8, 0), Vector(37.5, 8, 0)),  # 6
    Part.LineSegment(Vector(37.5, 8, 0), Vector(37.5, 39.5, 0)),  # 7
    Part.Circle(Vector(15, -15, 0), Vector(0, 0, 1), 2.7),  # 8
    Part.Circle(Vector(45, -15, 0), Vector(0, 0, 1), 2.7),  # 9
], False)
sketch15.addConstraint([
    Sketcher.Constraint("Coincident", 0, 2, 1, 1),
    Sketcher.Constraint("Coincident", 1, 2, 2, 1),
    Sketcher.Constraint("Coincident", 2, 2, 3, 1),
    Sketcher.Constraint("Coincident", 3, 2, 4, 1),
    Sketcher.Constraint("Coincident", 4, 2, 5, 1),
    Sketcher.Constraint("Coincident", 5, 2, 6, 1),
    Sketcher.Constraint("Coincident", 6, 2, 7, 1),
    Sketcher.Constraint("Coincident", 7, 2, 0, 1),
    Sketcher.Constraint("Horizontal", 0),
    Sketcher.Constraint("Vertical", 1),
    Sketcher.Constraint("Horizontal", 2),
    Sketcher.Constraint("Vertical", 3),
    Sketcher.Constraint("Horizontal", 4),
    Sketcher.Constraint("Vertical", 5),
    Sketcher.Constraint("Horizontal", 6),
    Sketcher.Constraint("Vertical", 7),
    Sketcher.Constraint("Equal", 8, 9),
    Sketcher.Constraint("Horizontal", 8, 3, 9, 3),
    Sketcher.Constraint("Horizontal", 2, 2, 5, 2),
    Sketcher.Constraint("Diameter", 8, Q("5.4 mm")),
    Sketcher.Constraint("DistanceX", 0, 2, 0, 1, Q("15 mm")),
    Sketcher.Constraint("DistanceX", 4, 1, 4, 2, Q("65 mm")),
    Sketcher.Constraint("DistanceY", 3, 2, 3, 1, Q("38 mm")),
    Sketcher.Constraint("DistanceX", 2, 2, 2, 1, Q("27.5 mm")),
    Sketcher.Constraint("DistanceY", 1, 2, 1, 1, Q("31.5 mm")),
    Sketcher.Constraint("DistanceX", -1, 1, 8, 3, Q("15 mm")),
    Sketcher.Constraint("DistanceY", 8, 3, -1, 1, Q("15 mm")),
    Sketcher.Constraint("DistanceX", -1, 1, 9, 3, Q("45 mm")),
    Sketcher.Constraint("DistanceY", -1, 1, 1, 2, Q("8 mm")),
    Sketcher.Constraint("DistanceX", 2, 2, -1, 1, Q("5 mm")),
])
pad11 = doc.addObject("PartDesign::Pad", "Pad010")
body2.addObject(pad11)
pad11.Profile = sketch15
pad11.Length = 5

# Sketch on XY plane
sketch16 = doc.addObject("Sketcher::SketchObject", "Sketch015")
body2.addObject(sketch16)
sketch16.AttachmentSupport = (doc.getObject("XY_Plane001"), [""])
sketch16.MapMode = "FlatFace"
sketch16.AttachmentOffset = App.Placement(Vector(0, 0, 34.5), App.Rotation())
sketch16.addGeometry([
    Part.Circle(Vector(-42.5, 42.7, 0), Vector(0, 0, 1), 2.6),
    Part.Circle(Vector(-22, 30, 0), Vector(0, 0, 1), 2.6),
], False)
sketch16.addConstraint([
    Sketcher.Constraint("Equal", 0, 1),
    Sketcher.Constraint("Diameter", 0, Q("5.2 mm")),
    Sketcher.Constraint("DistanceX", 1, 3, -1, 1, Q("22 mm")),
    Sketcher.Constraint("DistanceY", -1, 1, 1, 3, Q("30 mm")),
    Sketcher.Constraint("DistanceX", 0, 3, -1, 1, Q("42.5 mm")),
    Sketcher.Constraint("DistanceY", -1, 1, 0, 3, Q("42.725 mm")),
])
pocket5 = doc.addObject("PartDesign::Pocket", "Pocket004")
body2.addObject(pocket5)
pocket5.Profile = sketch16
pocket5.Type = "ThroughAll"
pocket5.Reversed = True
body3 = doc.addObject("PartDesign::Body", "Body002")
doc.recompute()

mirroring = doc.addObject("Part::Mirroring", "Mirroring")
mirroring.Source = body2
mirroring.Base = Vector(-125, 0, 19)
mirroring.Normal = Vector(1, 0, 0)
body3.BaseFeature = mirroring
doc.recompute()
mirroring.Visibility = False

doc.recompute()
